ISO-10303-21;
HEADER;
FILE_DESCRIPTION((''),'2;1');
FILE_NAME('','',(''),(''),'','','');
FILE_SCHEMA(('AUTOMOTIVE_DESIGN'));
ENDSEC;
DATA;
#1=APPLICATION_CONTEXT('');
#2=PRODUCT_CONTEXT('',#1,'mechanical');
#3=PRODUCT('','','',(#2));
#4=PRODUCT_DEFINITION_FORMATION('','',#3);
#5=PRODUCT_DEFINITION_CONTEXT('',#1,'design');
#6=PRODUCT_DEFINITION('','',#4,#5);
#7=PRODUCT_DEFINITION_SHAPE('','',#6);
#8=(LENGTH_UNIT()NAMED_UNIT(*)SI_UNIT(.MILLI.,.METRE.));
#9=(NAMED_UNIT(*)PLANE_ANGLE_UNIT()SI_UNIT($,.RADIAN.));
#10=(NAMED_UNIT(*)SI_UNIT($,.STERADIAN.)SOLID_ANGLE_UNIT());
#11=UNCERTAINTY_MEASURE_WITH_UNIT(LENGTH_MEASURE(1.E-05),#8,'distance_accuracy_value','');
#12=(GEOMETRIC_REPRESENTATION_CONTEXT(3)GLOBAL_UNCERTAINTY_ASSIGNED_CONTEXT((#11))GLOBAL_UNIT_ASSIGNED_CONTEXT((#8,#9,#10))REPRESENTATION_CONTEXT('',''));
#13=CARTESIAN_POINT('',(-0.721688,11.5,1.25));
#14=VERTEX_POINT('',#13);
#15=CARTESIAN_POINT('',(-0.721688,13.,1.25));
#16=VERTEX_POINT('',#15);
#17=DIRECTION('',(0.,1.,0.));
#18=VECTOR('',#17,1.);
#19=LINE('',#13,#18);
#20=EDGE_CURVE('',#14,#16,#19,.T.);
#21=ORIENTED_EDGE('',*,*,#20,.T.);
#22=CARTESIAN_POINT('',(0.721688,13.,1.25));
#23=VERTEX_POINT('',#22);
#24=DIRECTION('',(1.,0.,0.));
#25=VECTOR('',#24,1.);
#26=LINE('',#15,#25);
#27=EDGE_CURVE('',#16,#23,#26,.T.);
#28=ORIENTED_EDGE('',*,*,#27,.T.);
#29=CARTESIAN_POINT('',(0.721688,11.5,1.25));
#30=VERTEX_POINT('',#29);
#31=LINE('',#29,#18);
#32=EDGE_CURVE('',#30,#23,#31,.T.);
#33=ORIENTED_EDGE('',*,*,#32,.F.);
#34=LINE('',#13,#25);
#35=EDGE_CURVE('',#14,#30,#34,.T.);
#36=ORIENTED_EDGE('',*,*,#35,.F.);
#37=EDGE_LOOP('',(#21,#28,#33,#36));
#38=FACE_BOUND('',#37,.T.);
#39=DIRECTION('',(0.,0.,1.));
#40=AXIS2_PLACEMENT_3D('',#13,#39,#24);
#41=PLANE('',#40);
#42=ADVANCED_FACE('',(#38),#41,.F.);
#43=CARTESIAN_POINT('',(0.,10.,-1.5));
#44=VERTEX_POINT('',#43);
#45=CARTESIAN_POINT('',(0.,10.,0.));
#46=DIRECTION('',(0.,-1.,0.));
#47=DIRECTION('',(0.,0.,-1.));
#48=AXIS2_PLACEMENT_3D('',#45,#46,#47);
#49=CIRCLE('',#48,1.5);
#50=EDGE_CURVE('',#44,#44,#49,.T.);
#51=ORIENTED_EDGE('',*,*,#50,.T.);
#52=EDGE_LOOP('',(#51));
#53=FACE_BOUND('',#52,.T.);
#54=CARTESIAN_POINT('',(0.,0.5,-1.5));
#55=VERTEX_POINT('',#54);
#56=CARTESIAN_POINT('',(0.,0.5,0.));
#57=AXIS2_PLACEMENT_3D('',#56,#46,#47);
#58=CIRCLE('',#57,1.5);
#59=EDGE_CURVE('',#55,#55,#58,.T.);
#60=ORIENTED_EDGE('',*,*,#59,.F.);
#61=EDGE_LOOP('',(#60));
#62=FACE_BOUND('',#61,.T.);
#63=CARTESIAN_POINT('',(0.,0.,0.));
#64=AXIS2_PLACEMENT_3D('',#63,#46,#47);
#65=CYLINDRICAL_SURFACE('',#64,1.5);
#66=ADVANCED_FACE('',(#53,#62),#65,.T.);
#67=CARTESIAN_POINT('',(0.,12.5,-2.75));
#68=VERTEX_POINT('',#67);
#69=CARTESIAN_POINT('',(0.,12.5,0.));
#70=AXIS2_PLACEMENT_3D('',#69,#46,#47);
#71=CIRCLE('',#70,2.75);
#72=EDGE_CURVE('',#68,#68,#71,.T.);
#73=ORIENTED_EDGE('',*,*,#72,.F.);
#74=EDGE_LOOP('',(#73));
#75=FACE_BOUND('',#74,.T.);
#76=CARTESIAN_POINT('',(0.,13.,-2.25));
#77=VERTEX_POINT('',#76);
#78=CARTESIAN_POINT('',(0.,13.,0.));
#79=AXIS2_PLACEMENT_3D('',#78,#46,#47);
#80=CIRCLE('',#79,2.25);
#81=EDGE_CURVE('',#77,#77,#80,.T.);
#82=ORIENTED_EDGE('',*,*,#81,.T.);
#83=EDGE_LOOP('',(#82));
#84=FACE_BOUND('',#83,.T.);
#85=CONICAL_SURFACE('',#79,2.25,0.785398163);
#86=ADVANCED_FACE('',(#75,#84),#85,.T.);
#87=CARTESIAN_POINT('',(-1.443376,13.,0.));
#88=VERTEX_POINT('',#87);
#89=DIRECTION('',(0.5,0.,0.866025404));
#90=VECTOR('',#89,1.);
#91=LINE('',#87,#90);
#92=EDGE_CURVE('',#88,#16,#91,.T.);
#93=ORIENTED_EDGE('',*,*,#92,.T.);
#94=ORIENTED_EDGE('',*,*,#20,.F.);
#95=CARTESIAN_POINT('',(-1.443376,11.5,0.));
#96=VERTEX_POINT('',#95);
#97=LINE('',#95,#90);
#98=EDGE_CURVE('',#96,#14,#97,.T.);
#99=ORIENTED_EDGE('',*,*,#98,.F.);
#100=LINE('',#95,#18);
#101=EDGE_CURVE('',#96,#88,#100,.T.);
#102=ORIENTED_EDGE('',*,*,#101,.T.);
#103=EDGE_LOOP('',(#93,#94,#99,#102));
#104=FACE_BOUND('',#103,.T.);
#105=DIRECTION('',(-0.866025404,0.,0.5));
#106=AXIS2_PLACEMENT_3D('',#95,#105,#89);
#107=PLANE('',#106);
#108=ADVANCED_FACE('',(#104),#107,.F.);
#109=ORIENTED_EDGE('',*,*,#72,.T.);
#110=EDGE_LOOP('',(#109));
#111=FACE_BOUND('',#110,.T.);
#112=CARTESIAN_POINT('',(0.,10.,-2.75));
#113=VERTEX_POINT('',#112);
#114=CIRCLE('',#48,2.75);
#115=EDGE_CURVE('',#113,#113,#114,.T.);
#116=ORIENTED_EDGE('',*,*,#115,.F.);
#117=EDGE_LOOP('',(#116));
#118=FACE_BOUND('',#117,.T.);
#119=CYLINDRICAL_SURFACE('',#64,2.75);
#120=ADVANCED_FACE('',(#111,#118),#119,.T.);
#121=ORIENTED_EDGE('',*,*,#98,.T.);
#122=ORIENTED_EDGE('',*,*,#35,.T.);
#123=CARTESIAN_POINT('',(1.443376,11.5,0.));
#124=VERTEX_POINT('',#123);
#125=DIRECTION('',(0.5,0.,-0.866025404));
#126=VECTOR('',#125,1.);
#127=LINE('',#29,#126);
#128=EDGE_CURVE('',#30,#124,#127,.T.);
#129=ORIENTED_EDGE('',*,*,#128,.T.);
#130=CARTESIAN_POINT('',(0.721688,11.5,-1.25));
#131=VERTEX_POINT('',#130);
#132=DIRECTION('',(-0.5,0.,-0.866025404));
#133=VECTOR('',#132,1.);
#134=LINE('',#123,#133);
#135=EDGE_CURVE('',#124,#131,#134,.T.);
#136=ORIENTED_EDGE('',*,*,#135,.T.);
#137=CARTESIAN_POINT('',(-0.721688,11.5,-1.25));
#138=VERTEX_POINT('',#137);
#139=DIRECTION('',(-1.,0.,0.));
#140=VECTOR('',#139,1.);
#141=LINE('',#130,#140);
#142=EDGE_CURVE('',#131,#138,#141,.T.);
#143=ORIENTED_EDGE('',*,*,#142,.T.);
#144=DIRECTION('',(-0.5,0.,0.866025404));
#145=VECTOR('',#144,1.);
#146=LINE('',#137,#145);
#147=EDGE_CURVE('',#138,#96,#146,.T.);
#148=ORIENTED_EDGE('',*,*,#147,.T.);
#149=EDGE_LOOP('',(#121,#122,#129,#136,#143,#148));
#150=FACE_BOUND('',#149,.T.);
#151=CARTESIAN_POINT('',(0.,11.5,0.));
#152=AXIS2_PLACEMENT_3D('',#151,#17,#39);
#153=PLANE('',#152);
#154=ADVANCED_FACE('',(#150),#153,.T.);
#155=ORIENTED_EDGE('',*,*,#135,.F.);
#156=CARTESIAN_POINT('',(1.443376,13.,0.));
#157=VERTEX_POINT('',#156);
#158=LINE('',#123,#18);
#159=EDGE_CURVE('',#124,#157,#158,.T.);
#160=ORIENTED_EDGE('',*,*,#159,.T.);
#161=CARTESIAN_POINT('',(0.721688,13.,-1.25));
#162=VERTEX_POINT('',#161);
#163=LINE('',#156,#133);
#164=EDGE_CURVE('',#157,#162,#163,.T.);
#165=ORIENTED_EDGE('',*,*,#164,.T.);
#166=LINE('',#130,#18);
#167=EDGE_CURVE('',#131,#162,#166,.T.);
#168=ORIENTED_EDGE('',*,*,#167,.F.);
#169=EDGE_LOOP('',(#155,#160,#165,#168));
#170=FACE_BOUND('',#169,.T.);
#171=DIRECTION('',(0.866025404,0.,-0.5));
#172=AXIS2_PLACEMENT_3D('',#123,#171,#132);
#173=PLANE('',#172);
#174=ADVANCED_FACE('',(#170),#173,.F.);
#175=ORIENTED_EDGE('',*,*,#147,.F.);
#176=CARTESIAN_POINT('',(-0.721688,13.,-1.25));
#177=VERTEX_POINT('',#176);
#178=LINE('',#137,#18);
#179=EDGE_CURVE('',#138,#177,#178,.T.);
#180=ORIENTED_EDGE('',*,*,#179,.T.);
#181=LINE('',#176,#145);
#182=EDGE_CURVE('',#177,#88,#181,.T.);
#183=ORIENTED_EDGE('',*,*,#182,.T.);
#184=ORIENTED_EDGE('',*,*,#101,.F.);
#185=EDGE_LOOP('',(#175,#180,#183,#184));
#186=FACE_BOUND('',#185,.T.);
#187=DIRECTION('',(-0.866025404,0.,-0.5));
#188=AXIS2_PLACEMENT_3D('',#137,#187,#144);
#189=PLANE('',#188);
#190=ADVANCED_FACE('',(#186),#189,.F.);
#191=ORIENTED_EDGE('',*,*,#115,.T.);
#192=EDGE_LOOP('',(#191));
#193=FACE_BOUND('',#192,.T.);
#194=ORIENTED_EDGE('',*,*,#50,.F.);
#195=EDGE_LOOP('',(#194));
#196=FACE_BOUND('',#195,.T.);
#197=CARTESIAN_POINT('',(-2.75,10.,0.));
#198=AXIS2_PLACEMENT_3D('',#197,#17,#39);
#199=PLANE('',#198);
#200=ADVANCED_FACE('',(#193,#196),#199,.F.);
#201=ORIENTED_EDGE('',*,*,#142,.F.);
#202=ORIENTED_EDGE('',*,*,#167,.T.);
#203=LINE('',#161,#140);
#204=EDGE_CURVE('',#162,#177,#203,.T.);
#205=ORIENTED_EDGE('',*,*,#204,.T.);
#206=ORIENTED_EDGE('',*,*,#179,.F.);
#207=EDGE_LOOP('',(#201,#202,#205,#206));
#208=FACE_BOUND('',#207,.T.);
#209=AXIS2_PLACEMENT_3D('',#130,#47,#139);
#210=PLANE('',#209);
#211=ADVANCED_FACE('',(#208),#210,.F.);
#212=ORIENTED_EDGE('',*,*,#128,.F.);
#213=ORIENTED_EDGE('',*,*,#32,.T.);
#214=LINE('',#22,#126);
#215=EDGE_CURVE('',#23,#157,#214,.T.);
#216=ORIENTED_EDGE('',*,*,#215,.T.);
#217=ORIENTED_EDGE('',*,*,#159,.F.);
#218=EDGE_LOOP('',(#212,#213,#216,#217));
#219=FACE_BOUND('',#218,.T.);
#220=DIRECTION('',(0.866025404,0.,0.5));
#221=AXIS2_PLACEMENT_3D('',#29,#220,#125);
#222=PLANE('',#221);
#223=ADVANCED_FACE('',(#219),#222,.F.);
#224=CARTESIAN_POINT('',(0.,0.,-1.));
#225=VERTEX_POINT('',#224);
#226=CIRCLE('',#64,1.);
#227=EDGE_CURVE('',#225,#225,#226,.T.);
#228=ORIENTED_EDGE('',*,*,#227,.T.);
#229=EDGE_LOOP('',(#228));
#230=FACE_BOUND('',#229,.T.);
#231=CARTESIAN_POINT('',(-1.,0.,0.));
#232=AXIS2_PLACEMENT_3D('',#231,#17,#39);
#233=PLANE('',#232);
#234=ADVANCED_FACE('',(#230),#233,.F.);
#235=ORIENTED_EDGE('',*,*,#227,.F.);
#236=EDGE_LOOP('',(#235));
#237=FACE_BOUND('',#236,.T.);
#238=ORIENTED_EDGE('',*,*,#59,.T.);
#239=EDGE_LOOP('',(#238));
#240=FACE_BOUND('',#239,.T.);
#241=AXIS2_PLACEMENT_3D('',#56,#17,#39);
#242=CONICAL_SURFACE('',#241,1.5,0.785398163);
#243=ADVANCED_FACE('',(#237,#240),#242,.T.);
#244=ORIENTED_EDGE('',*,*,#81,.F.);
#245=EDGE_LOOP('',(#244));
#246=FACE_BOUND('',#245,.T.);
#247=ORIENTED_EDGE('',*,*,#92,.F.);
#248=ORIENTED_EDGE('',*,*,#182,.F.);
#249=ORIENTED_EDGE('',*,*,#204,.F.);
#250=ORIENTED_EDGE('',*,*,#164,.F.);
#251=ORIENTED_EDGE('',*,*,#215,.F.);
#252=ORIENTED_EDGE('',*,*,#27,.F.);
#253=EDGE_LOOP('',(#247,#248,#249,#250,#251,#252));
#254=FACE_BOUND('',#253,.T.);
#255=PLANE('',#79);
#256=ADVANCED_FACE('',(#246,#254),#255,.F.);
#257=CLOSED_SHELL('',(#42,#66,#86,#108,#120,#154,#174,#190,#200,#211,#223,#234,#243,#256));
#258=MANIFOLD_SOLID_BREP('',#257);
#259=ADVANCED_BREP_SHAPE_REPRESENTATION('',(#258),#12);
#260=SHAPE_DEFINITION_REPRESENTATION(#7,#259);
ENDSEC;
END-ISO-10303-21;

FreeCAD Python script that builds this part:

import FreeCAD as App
import Part
import Sketcher
Q = App.Units.Quantity

doc = App.newDocument("Part")
params = doc.addObject("Spreadsheet::Sheet", "Params")
for row, (alias, value) in enumerate([
    ("sketch1_width", "1 mm"),
    ("sketch1_height", "13 mm"),
    ("sketch1_height2", "2.5 mm"),
    ("sketch1_height3", "9.5 mm"),
    ("sketch1_width2", "2.25 mm"),
    ("revolution_angle", "360 deg"),
    ("pocket1_length", "1.5 mm"),
], start=1):
    params.set(f"A{row}", alias)
    params.set(f"B{row}", "=" + value)
    params.setAlias(f"B{row}", alias)

body = doc.addObject("PartDesign::Body", "Body")

# Sketch on XY plane
sketch1 = doc.addObject("Sketcher::SketchObject", "Sketch")
body.addObject(sketch1)
sketch1.AttachmentSupport = (doc.XY_Plane, [""])
sketch1.MapMode = "FlatFace"
sketch1.addGeometry(Part.LineSegment(App.Vector(0, 13, 0), App.Vector(-2.2, 13, 0)), False)
sketch1.addGeometry(Part.LineSegment(App.Vector(-2.2, 13, 0), App.Vector(-2.8, 12.5, 0)), False)
sketch1.addGeometry(Part.LineSegment(App.Vector(-2.8, 12.5, 0), App.Vector(-2.8, 10, 0)), False)
sketch1.addGeometry(Part.LineSegment(App.Vector(-2.8, 10, 0), App.Vector(-1.5, 10, 0)), False)
sketch1.addGeometry(Part.LineSegment(App.Vector(-1.5, 10, 0), App.Vector(-1.5, 0.5, 0)), False)
sketch1.addGeometry(Part.LineSegment(App.Vector(-1.5, 0.5, 0), App.Vector(-1, 0, 0)), False)
sketch1.addGeometry(Part.LineSegment(App.Vector(-1, 0, 0), App.Vector(0, 0, 0)), False)
sketch1.addGeometry(Part.LineSegment(App.Vector(0, 0, 0), App.Vector(0, 13, 0)), False)
sketch1.addConstraint(Sketcher.Constraint("Coincident", 0, 2, 1, 1))
sketch1.addConstraint(Sketcher.Constraint("Coincident", 1, 2, 2, 1))
sketch1.addConstraint(Sketcher.Constraint("Coincident", 2, 2, 3, 1))
sketch1.addConstraint(Sketcher.Constraint("Coincident", 3, 2, 4, 1))
sketch1.addConstraint(Sketcher.Constraint("Coincident", 4, 2, 5, 1))
sketch1.addConstraint(Sketcher.Constraint("Coincident", 5, 2, 6, 1))
sketch1.addConstraint(Sketcher.Constraint("Coincident", 6, 2, 7, 1))
sketch1.addConstraint(Sketcher.Constraint("Coincident", 7, 2, 0, 1))
sketch1.addConstraint(Sketcher.Constraint("Horizontal", 0))
sketch1.addConstraint(Sketcher.Constraint("Vertical", 2))
sketch1.addConstraint(Sketcher.Constraint("Horizontal", 3))
sketch1.addConstraint(Sketcher.Constraint("Vertical", 4))
sketch1.addConstraint(Sketcher.Constraint("Horizontal", 6))
sketch1.addConstraint(Sketcher.Constraint("Vertical", 7))
sketch1.addConstraint(Sketcher.Constraint("Coincident", 6, 2, -1, 1))
sketch1.addConstraint(Sketcher.Constraint("Perpendicular", 1, 5))
sketch1.addConstraint(Sketcher.Constraint("Equal", 1, 5))
sketch1.addConstraint(Sketcher.Constraint("DistanceX", 6, 1, 6, 2, 1.0))
sketch1.addConstraint(Sketcher.Constraint("DistanceY", 7, 1, 7, 2, 13.0))
sketch1.addConstraint(Sketcher.Constraint("Angle", 1, Q("-135 deg")))
sketch1.addConstraint(Sketcher.Constraint("DistanceY", 2, 2, 2, 1, 2.5))
sketch1.addConstraint(Sketcher.Constraint("DistanceY", 4, 2, 4, 1, 9.5))
sketch1.addConstraint(Sketcher.Constraint("DistanceX", 0, 2, 0, 1, 2.25))
sketch1.setExpression("Constraints[17]", "Params.sketch1_width")
sketch1.setExpression("Constraints[18]", "Params.sketch1_height")
sketch1.setExpression("Constraints[20]", "Params.sketch1_height2")
sketch1.setExpression("Constraints[21]", "Params.sketch1_height3")
sketch1.setExpression("Constraints[22]", "Params.sketch1_width2")
revolution = doc.addObject("PartDesign::Revolution", "Revolution")
body.addObject(revolution)
revolution.Profile = sketch1
revolution.ReferenceAxis = (sketch1, ["V_Axis"])
revolution.setExpression("Angle", "Params.revolution_angle")

# Sketch on XZ plane
sketch2 = doc.addObject("Sketcher::SketchObject", "Sketch001")
body.addObject(sketch2)
sketch2.AttachmentSupport = (doc.XZ_Plane, [""])
sketch2.MapMode = "FlatFace"
sketch2.AttachmentOffset = App.Placement(App.Vector(0, 0, -13), App.Rotation())
sketch2.addGeometry(Part.LineSegment(App.Vector(-1.4, 0, 0), App.Vector(-0.7, 1.2, 0)), False)
sketch2.addGeometry(Part.LineSegment(App.Vector(-0.7, 1.2, 0), App.Vector(0.7, 1.2, 0)), False)
sketch2.addGeometry(Part.LineSegment(App.Vector(0.7, 1.2, 0), App.Vector(1.4, 0, 0)), False)
sketch2.addGeometry(Part.LineSegment(App.Vector(1.4, 0, 0), App.Vector(0.7, -1.2, 0)), False)
sketch2.addGeometry(Part.LineSegment(App.Vector(0.7, -1.2, 0), App.Vector(-0.7, -1.2, 0)), False)
sketch2.addGeometry(Part.LineSegment(App.Vector(-0.7, -1.2, 0), App.Vector(-1.4, 0, 0)), False)
sketch2.addConstraint(Sketcher.Constraint("Coincident", 0, 2, 1, 1))
sketch2.addConstraint(Sketcher.Constraint("Coincident", 1, 2, 2, 1))
sketch2.addConstraint(Sketcher.Constraint("Coincident", 2, 2, 3, 1))
sketch2.addConstraint(Sketcher.Constraint("Coincident", 3, 2, 4, 1))
sketch2.addConstraint(Sketcher.Constraint("Coincident", 4, 2, 5, 1))
sketch2.addConstraint(Sketcher.Constraint("Coincident", 5, 2, 0, 1))
sketch2.addConstraint(Sketcher.Constraint("Horizontal", 1))
sketch2.addConstraint(Sketcher.Constraint("Horizontal", 4))
sketch2.addConstraint(Sketcher.Constraint("Symmetric", 0, 2, 3, 2, -1, 1))
sketch2.addConstraint(Sketcher.Constraint("Symmetric", 2, 2, 5, 2, -1, 1))
sketch2.addConstraint(Sketcher.Constraint("PointOnObject", 2, 2, -1))
sketch2.addConstraint(Sketcher.Constraint("Parallel", 2, 5))
sketch2.addConstraint(Sketcher.Constraint("Vertical", 1, 2, 3, 2))
sketch2.addConstraint(Sketcher.Constraint("Angle", 0, Q("60 deg")))
sketch2.addConstraint(Sketcher.Constraint("DistanceY", 3, 2, 1, 2, 2.5))
sketch2.addConstraint(Sketcher.Constraint("DistanceX", 1, 1, 1, 2, 1.443376))
pocket1 = doc.addObject("PartDesign::Pocket", "Pocket")
body.addObject(pocket1)
pocket1.Profile = sketch2
pocket1.setExpression("Length", "Params.pocket1_length")
pocket1.Reversed = True

doc.recompute()
